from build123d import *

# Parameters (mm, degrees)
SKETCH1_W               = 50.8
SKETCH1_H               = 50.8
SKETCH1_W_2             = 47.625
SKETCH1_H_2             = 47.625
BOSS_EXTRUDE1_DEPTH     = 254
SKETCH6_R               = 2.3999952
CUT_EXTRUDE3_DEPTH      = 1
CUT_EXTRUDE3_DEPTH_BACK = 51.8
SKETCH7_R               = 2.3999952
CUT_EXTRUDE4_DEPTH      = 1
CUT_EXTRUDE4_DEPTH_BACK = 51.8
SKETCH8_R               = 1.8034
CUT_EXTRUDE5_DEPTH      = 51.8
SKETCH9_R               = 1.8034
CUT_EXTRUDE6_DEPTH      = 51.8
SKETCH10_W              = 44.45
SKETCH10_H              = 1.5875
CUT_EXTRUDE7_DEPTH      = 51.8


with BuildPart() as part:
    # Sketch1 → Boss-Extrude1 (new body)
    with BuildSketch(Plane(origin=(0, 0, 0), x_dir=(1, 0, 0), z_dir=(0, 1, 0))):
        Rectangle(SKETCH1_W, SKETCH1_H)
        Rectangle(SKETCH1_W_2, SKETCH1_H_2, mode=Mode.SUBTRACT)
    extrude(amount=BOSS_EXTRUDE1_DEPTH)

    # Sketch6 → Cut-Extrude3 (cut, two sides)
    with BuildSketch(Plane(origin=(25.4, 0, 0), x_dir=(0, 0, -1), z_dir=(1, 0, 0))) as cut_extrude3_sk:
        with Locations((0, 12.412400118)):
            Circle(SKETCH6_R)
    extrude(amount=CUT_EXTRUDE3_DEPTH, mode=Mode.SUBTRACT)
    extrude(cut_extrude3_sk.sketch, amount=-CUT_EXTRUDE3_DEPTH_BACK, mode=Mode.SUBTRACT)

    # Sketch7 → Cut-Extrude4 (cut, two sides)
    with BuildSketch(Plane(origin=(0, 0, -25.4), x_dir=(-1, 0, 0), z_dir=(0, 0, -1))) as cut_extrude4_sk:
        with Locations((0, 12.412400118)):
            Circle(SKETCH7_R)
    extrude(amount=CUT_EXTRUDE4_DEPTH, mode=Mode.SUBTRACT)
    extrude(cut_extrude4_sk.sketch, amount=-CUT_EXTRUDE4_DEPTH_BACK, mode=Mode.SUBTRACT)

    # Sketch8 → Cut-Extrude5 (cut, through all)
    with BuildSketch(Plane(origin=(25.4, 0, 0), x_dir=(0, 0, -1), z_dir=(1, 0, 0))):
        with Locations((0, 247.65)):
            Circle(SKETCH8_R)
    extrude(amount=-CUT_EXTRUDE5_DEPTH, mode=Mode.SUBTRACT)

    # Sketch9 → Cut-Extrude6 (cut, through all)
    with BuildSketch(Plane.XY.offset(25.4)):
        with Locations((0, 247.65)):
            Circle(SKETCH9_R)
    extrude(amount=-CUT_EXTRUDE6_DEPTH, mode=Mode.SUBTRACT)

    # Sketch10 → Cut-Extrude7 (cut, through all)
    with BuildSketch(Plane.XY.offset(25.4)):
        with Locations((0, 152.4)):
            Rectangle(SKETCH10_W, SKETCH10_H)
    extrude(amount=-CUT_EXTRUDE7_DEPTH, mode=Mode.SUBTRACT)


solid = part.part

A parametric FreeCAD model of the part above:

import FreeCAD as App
import Part
import Sketcher

V = App.Vector
Q = App.Units.Quantity

doc = App.newDocument("Part")
body = doc.addObject("PartDesign::Body", "Body")

sketch1 = body.newObject("Sketcher::SketchObject", "Sketch")
sketch1.AttachmentSupport = (doc.getObject("XZ_Plane"), [""])
sketch1.MapMode = "FlatFace"
sketch1.addGeometry(Part.LineSegment(V(-25.4, -25.4, 0), V(-25.4, 25.4, 0)), False)
sketch1.addGeometry(Part.LineSegment(V(-25.4, 25.4, 0), V(25.4, 25.4, 0)), False)
sketch1.addGeometry(Part.LineSegment(V(25.4, 25.4, 0), V(25.4, -25.4, 0)), False)
sketch1.addGeometry(Part.LineSegment(V(25.4, -25.4, 0), V(-25.4, -25.4, 0)), False)
sketch1.addGeometry(Part.LineSegment(V(23.8125, 23.8125, 0), V(-23.8125, 23.8125, 0)), False)
sketch1.addGeometry(Part.LineSegment(V(-23.8125, 23.8125, 0), V(-23.8125, -23.8125, 0)), False)
sketch1.addGeometry(Part.LineSegment(V(-23.8125, -23.8125, 0), V(23.8125, -23.8125, 0)), False)
sketch1.addGeometry(Part.LineSegment(V(23.8125, -23.8125, 0), V(23.8125, 23.8125, 0)), False)
sketch1.addConstraint(Sketcher.Constraint("Coincident", 0, 2, 1, 1))
sketch1.addConstraint(Sketcher.Constraint("Coincident", 1, 2, 2, 1))
sketch1.addConstraint(Sketcher.Constraint("Coincident", 2, 2, 3, 1))
sketch1.addConstraint(Sketcher.Constraint("Coincident", 3, 2, 0, 1))
sketch1.addConstraint(Sketcher.Constraint("Coincident", 4, 2, 5, 1))
sketch1.addConstraint(Sketcher.Constraint("Coincident", 5, 2, 6, 1))
sketch1.addConstraint(Sketcher.Constraint("Coincident", 6, 2, 7, 1))
sketch1.addConstraint(Sketcher.Constraint("Coincident", 7, 2, 4, 1))
sketch1.addConstraint(Sketcher.Constraint("Vertical", 0))
sketch1.addConstraint(Sketcher.Constraint("Horizontal", 1))
sketch1.addConstraint(Sketcher.Constraint("Vertical", 2))
sketch1.addConstraint(Sketcher.Constraint("Horizontal", 3))
sketch1.addConstraint(Sketcher.Constraint("Horizontal", 4))
sketch1.addConstraint(Sketcher.Constraint("Vertical", 5))
sketch1.addConstraint(Sketcher.Constraint("Horizontal", 6))
sketch1.addConstraint(Sketcher.Constraint("Vertical", 7))
sketch1.addConstraint(Sketcher.Constraint("Symmetric", 0, 2, 2, 2, -1, 1))
sketch1.addConstraint(Sketcher.Constraint("Symmetric", 4, 2, 6, 2, -1, 1))
sketch1.addConstraint(Sketcher.Constraint("Equal", 3, 0))
sketch1.addConstraint(Sketcher.Constraint("Equal", 6, 5))
sketch1.addConstraint(Sketcher.Constraint("DistanceX", 1, 1, 1, 2, Q("2 in")))
sketch1.addConstraint(Sketcher.Constraint("DistanceX", 4, 2, 4, 1, Q("1.875 in")))
pad1 = body.newObject("PartDesign::Pad", "Pad")
pad1.Profile = sketch1
pad1.Length = Q("10 in")
pad1.Reversed = True

sketch2 = body.newObject("Sketcher::SketchObject", "Sketch001")
sketch2.AttachmentSupport = (doc.getObject("YZ_Plane"), [""])
sketch2.MapMode = "FlatFace"
sketch2.AttachmentOffset = App.Placement(V(0, 0, 1 * 25.4), App.Rotation())
sketch2.addGeometry(Part.Circle(V(12.4124, 0, 0), V(0, 0, 1), 2.399995), False)
sketch2.addConstraint(Sketcher.Constraint("PointOnObject", 0, 3, -1))
sketch2.addConstraint(Sketcher.Constraint("Diameter", 0, Q("4.79999 mm")))
sketch2.addConstraint(Sketcher.Constraint("DistanceX", -1, 1, 0, 3, Q("12.4124 mm")))
pocket1 = body.newObject("PartDesign::Pocket", "Pocket")
pocket1.Profile = sketch2
pocket1.Type = "ThroughAll"
pocket1.Midplane = True

sketch3 = body.newObject("Sketcher::SketchObject", "Sketch002")
sketch3.AttachmentSupport = (doc.getObject("XY_Plane"), [""])
sketch3.MapMode = "FlatFace"
sketch3.AttachmentOffset = App.Placement(V(0, 0, -1 * 25.4), App.Rotation())
sketch3.addGeometry(Part.Circle(V(0, 12.4124, 0), V(0, 0, 1), 2.399995), False)
sketch3.addConstraint(Sketcher.Constraint("PointOnObject", 0, 3, -2))
sketch3.addConstraint(Sketcher.Constraint("Diameter", 0, Q("4.79999 mm")))
sketch3.addConstraint(Sketcher.Constraint("DistanceY", -1, 1, 0, 3, Q("12.4124 mm")))
pocket2 = body.newObject("PartDesign::Pocket", "Pocket001")
pocket2.Profile = sketch3
pocket2.Type = "ThroughAll"
pocket2.Midplane = True

sketch4 = body.newObject("Sketcher::SketchObject", "Sketch003")
sketch4.AttachmentSupport = (doc.getObject("YZ_Plane"), [""])
sketch4.MapMode = "FlatFace"
sketch4.AttachmentOffset = App.Placement(V(0, 0, 1 * 25.4), App.Rotation())
sketch4.addGeometry(Part.Circle(V(247.65, 0, 0), V(0, 0, 1), 1.8034), False)
sketch4.addConstraint(Sketcher.Constraint("PointOnObject", 0, 3, -1))
sketch4.addConstraint(Sketcher.Constraint("Diameter", 0, Q("0.142 in")))
sketch4.addConstraint(Sketcher.Constraint("DistanceX", -1, 1, 0, 3, Q("9.75 in")))
pocket3 = body.newObject("PartDesign::Pocket", "Pocket002")
pocket3.Profile = sketch4
pocket3.Type = "ThroughAll"

sketch5 = body.newObject("Sketcher::SketchObject", "Sketch004")
sketch5.AttachmentSupport = (doc.getObject("XY_Plane"), [""])
sketch5.MapMode = "FlatFace"
sketch5.AttachmentOffset = App.Placement(V(0, 0, 1 * 25.4), App.Rotation())
sketch5.addGeometry(Part.Circle(V(0, 247.65, 0), V(0, 0, 1), 1.8034), False)
sketch5.addConstraint(Sketcher.Constraint("PointOnObject", 0, 3, -2))
sketch5.addConstraint(Sketcher.Constraint("Diameter", 0, Q("0.142 in")))
sketch5.addConstraint(Sketcher.Constraint("DistanceY", -1, 1, 0, 3, Q("9.75 in")))
pocket4 = body.newObject("PartDesign::Pocket", "Pocket003")
pocket4.Profile = sketch5
pocket4.Type = "ThroughAll"

sketch6 = body.newObject("Sketcher::SketchObject", "Sketch005")
sketch6.AttachmentSupport = (doc.getObject("XY_Plane"), [""])
sketch6.MapMode = "FlatFace"
sketch6.AttachmentOffset = App.Placement(V(0, 0, 1 * 25.4), App.Rotation())
sketch6.addGeometry(Part.LineSegment(V(-22.225, 153.19375, 0), V(-22.225, 151.60625, 0)), False)
sketch6.addGeometry(Part.LineSegment(V(-22.225, 151.60625, 0), V(22.225, 151.60625, 0)), False)
sketch6.addGeometry(Part.LineSegment(V(22.225, 151.60625, 0), V(22.225, 153.19375, 0)), False)
sketch6.addGeometry(Part.LineSegment(V(22.225, 153.19375, 0), V(-22.225, 153.19375, 0)), False)
sketch6.addConstraint(Sketcher.Constraint("Coincident", 0, 2, 1, 1))
sketch6.addConstraint(Sketcher.Constraint("Coincident", 1, 2, 2, 1))
sketch6.addConstraint(Sketcher.Constraint("Coincident", 2, 2, 3, 1))
sketch6.addConstraint(Sketcher.Constraint("Coincident", 3, 2, 0, 1))
sketch6.addConstraint(Sketcher.Constraint("Vertical", 0))
sketch6.addConstraint(Sketcher.Constraint("Horizontal", 1))
sketch6.addConstraint(Sketcher.Constraint("Vertical", 2))
sketch6.addConstraint(Sketcher.Constraint("Horizontal", 3))
sketch6.addConstraint(Sketcher.Constraint("DistanceX", 1, 1, 1, 2, Q("1.75 in")))
sketch6.addConstraint(Sketcher.Constraint("DistanceY", 0, 2, 0, 1, Q("0.0625 in")))
sketch6.addConstraint(Sketcher.Constraint("DistanceX", 0, 2, -1, 1, Q("0.875 in")))
sketch6.addConstraint(Sketcher.Constraint("DistanceY", -1, 1, 0, 2, Q("5.96875 in")))
pocket5 = body.newObject("PartDesign::Pocket", "Pocket004")
pocket5.Profile = sketch6
pocket5.Type = "ThroughAll"

doc.recompute()
